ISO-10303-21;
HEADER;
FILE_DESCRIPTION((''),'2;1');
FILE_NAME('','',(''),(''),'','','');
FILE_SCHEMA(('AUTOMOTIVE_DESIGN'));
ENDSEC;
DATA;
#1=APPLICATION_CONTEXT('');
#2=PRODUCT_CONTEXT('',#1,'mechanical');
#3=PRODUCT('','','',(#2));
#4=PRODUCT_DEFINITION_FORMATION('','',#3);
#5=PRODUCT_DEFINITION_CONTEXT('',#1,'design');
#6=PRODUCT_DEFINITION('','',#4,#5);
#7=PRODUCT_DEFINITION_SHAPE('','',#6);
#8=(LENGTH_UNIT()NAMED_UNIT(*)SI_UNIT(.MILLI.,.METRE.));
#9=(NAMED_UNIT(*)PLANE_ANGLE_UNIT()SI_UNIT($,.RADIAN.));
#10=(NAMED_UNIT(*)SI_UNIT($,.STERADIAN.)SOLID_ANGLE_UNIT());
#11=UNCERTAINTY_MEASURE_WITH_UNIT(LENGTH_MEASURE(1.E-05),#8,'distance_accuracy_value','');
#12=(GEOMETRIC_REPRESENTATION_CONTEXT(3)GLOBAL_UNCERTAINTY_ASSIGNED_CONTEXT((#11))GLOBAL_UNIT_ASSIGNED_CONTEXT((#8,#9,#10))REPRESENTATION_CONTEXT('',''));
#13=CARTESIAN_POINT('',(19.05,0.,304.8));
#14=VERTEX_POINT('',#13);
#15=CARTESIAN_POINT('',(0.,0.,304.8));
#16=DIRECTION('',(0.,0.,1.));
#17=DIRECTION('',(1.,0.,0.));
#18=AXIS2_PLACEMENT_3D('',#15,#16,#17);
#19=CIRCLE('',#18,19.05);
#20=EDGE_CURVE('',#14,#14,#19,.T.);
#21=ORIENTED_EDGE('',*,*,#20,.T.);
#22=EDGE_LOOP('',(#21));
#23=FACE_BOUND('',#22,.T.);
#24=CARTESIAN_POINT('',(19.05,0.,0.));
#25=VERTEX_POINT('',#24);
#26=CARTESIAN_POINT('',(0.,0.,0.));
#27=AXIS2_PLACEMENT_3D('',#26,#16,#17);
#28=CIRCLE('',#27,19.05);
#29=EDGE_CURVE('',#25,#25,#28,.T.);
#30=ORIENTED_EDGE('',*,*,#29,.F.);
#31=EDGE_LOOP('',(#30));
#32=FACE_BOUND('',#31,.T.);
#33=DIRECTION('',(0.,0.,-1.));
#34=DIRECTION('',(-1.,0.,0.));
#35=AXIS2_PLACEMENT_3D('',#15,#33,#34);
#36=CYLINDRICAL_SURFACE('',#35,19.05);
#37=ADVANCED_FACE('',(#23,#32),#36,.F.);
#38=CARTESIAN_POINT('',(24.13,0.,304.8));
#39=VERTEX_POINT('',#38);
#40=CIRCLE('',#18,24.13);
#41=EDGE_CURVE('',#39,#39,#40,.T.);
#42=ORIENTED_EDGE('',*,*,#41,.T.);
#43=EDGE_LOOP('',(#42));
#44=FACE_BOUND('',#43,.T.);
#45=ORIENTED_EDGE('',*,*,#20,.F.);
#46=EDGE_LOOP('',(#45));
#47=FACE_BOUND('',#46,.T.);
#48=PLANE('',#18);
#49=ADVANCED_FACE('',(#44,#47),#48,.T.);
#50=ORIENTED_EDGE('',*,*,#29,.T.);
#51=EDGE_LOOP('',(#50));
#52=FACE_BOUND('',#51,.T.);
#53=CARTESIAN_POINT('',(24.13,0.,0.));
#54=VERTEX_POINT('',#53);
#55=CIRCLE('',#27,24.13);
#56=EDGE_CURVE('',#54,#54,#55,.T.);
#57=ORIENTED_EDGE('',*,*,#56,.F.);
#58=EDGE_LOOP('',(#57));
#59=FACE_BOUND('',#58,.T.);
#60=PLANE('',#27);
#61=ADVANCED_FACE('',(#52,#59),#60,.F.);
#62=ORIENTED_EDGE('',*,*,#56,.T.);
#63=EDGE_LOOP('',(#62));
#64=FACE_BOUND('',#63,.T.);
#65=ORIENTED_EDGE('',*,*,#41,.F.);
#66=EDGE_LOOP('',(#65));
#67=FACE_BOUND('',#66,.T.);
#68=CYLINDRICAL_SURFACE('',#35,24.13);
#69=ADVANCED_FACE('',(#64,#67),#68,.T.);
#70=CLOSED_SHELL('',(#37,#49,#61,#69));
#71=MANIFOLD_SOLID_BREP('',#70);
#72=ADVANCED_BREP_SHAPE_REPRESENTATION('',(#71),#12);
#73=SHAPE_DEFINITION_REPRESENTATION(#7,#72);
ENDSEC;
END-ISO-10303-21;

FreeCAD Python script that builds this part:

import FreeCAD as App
import Part
import Sketcher

V = App.Vector
Q = App.Units.Quantity

doc = App.newDocument("Part")
body = doc.addObject("PartDesign::Body", "Body")

sketch1 = body.newObject("Sketcher::SketchObject", "Sketch")
sketch1.AttachmentSupport = (doc.getObject("XY_Plane"), [""])
sketch1.MapMode = "FlatFace"
sketch1.addGeometry(Part.Circle(V(0, 0, 0), V(0, 0, 1), 24.13), False)
sketch1.addGeometry(Part.Circle(V(0, 0, 0), V(0, 0, 1), 19.05), False)
sketch1.addConstraint(Sketcher.Constraint("Coincident", 0, 3, -1, 1))
sketch1.addConstraint(Sketcher.Constraint("Coincident", 1, 3, -1, 1))
sketch1.addConstraint(Sketcher.Constraint("Diameter", 0, Q("1.9 in")))
sketch1.addConstraint(Sketcher.Constraint("Diameter", 1, Q("1.5 in")))
pad1 = body.newObject("PartDesign::Pad", "Pad")
pad1.Profile = sketch1
pad1.Length = Q("12 in")

doc.recompute()
